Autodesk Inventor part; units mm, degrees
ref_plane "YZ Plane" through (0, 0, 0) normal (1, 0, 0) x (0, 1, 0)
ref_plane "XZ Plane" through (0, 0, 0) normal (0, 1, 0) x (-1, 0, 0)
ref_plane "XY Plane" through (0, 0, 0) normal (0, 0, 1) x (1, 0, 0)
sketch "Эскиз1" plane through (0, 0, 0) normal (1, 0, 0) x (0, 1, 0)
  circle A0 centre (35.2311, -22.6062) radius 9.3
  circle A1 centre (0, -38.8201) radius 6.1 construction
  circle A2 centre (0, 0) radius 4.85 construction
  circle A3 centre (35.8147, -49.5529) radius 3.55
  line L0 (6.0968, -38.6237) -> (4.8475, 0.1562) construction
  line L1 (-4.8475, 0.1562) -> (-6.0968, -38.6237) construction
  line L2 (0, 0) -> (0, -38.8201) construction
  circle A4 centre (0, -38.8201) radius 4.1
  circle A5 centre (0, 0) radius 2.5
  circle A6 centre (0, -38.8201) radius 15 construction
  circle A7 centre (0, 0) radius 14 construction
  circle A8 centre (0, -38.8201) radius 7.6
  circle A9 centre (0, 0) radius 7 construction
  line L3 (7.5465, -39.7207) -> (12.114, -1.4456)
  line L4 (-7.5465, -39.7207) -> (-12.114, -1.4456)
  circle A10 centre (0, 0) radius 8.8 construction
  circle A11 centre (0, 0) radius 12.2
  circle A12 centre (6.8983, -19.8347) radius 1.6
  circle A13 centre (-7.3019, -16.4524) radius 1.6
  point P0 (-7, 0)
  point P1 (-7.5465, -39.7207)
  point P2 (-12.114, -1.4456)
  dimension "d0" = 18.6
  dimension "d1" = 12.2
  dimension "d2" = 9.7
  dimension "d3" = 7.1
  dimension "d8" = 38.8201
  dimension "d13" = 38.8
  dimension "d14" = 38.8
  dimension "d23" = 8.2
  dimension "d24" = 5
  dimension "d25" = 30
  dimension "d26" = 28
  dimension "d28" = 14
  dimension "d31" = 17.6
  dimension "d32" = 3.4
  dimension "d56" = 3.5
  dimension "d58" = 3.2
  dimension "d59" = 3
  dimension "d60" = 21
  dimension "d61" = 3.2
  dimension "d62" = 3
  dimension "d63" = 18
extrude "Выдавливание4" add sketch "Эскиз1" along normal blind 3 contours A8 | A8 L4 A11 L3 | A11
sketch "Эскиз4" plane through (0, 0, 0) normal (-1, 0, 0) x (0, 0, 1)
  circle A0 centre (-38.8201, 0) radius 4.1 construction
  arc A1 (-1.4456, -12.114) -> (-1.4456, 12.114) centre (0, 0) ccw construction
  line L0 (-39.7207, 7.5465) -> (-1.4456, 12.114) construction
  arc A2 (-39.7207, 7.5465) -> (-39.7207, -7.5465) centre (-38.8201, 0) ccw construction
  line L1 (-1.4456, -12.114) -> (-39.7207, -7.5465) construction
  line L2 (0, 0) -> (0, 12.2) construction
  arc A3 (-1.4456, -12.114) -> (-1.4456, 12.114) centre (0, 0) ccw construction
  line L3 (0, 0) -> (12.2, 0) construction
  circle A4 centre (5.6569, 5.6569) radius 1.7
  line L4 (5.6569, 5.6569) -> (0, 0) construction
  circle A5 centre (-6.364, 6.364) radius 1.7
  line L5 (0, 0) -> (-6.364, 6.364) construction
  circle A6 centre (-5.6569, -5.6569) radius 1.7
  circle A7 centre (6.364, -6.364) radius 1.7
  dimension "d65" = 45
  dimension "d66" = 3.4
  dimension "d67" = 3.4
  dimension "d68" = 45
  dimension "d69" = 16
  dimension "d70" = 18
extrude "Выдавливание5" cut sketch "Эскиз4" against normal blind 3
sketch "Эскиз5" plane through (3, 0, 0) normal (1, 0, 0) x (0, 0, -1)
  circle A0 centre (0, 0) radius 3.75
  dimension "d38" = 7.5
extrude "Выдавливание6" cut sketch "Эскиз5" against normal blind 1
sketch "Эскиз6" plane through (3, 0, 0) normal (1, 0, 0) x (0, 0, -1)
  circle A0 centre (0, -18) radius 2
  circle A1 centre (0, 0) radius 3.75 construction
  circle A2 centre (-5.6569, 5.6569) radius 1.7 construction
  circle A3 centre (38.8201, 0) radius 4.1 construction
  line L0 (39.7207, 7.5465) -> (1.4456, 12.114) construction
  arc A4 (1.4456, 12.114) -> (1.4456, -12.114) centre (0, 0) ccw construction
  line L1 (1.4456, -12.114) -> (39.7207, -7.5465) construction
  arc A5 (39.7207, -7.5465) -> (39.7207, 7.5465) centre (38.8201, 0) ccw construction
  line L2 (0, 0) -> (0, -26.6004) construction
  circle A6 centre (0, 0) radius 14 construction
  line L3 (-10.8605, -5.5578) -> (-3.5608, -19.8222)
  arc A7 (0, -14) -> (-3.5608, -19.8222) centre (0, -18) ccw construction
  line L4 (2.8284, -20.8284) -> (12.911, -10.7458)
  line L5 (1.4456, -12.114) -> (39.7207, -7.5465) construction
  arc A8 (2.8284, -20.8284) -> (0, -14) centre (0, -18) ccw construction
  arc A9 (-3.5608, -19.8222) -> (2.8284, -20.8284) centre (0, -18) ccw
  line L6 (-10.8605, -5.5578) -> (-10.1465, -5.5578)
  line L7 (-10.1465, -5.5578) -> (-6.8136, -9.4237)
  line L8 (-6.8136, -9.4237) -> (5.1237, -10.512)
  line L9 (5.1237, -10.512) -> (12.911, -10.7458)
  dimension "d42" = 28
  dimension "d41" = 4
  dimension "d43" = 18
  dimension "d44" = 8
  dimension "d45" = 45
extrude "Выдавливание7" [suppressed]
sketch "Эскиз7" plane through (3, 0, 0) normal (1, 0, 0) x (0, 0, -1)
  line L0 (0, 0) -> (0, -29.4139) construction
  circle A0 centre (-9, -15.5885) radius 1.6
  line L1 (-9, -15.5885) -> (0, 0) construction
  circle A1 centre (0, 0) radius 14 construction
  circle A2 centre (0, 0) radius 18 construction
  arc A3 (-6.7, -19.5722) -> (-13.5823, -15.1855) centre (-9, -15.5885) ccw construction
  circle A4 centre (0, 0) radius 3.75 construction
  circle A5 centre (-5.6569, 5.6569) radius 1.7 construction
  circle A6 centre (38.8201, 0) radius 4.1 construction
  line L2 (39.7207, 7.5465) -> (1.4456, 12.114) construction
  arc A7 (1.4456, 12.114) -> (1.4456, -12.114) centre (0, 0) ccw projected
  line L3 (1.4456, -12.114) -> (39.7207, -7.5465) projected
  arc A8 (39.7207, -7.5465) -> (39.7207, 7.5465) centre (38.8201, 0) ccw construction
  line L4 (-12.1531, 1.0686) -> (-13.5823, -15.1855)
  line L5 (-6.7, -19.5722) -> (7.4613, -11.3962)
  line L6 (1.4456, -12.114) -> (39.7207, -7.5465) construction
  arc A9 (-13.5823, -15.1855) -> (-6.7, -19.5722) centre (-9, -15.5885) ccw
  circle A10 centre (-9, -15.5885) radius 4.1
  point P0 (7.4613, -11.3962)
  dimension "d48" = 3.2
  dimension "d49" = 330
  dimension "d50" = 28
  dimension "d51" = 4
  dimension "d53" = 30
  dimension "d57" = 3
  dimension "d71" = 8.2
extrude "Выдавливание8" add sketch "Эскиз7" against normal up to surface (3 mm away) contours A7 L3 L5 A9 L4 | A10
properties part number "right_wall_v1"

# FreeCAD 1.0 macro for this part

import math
import FreeCAD as App
import Part
import Sketcher

V = App.Vector
Q = App.Units.Quantity

doc = App.newDocument("Part")
body = doc.addObject("PartDesign::Body", "Body")

sketch1 = body.newObject("Sketcher::SketchObject", "Sketch")
sketch1.AttachmentSupport = (doc.getObject("YZ_Plane"), [""])
sketch1.MapMode = "FlatFace"
sketch1.addGeometry([
    Part.ArcOfCircle(Part.Circle(V(0, -38.8, 0), V(0, 0, 1), 7.6), math.radians(-173), math.radians(-7)),
    Part.LineSegment(V(7.5, -39.7, 0), V(12.1, -1.4, 0)),
    Part.ArcOfCircle(Part.Circle(V(0, 0, 0), V(0, 0, 1), 12.2), math.radians(-7), math.radians(187)),
    Part.LineSegment(V(-12.1, -1.4, 0), V(-7.5, -39.7, 0)),
    Part.Circle(V(0, -38.8, 0), V(0, 0, 1), 4.1),
    Part.Circle(V(-7.3, -16.5, 0), V(0, 0, 1), 1.6),
    Part.Circle(V(6.9, -19.8, 0), V(0, 0, 1), 1.6),
    Part.Circle(V(0, 0, 0), V(0, 0, 1), 2.5),
], False)
sketch1.addConstraint([
    Sketcher.Constraint("Tangent", 0, 2, 1, 1),
    Sketcher.Constraint("Tangent", 1, 2, 2, 1),
    Sketcher.Constraint("Tangent", 2, 2, 3, 1),
    Sketcher.Constraint("Tangent", 3, 2, 0, 1),
    Sketcher.Constraint("Coincident", 2, 3, -1, 1),
    Sketcher.Constraint("Coincident", 7, 3, -1, 1),
    Sketcher.Constraint("Coincident", 4, 3, 0, 3),
    Sketcher.Constraint("Equal", 5, 6),
    Sketcher.Constraint("PointOnObject", 0, 3, -2),
    Sketcher.Constraint("Diameter", 7, 5.0),
    Sketcher.Constraint("Diameter", 4, 8.2),
    Sketcher.Constraint("Diameter", 5, 3.2),
    Sketcher.Constraint("Radius", 2, 12.2),
    Sketcher.Constraint("Radius", 0, 7.6),
    Sketcher.Constraint("DistanceY", 0, 3, -1, 1, 38.82),
    Sketcher.Constraint("DistanceX", 5, 3, -1, 1, 7.302),
    Sketcher.Constraint("DistanceY", 0, 2, 6, 3, 19.886),
    Sketcher.Constraint("DistanceY", 5, 3, -1, 1, 16.4524),
    Sketcher.Constraint("DistanceX", -1, 1, 6, 3, 6.8983),
])
pad1 = body.newObject("PartDesign::Pad", "Pad")
pad1.Profile = sketch1
pad1.Length = 3

sketch2 = body.newObject("Sketcher::SketchObject", "Sketch001")
sketch2.AttachmentSupport = (doc.getObject("YZ_Plane"), [""])
sketch2.MapMode = "FlatFace"
sketch2.addGeometry([
    Part.Circle(V(5.7, 5.7, 0), V(0, 0, 1), 1.7),
    Part.Circle(V(6.4, -6.4, 0), V(0, 0, 1), 1.7),
    Part.Circle(V(-5.7, -5.7, 0), V(0, 0, 1), 1.7),
    Part.Circle(V(-6.4, 6.4, 0), V(0, 0, 1), 1.7),
], False)
sketch2.addConstraint([
    Sketcher.Constraint("Equal", 0, 1),
    Sketcher.Constraint("Equal", 1, 2),
    Sketcher.Constraint("Equal", 2, 3),
    Sketcher.Constraint("Symmetric", 0, 3, 2, 3, -1, 1),
    Sketcher.Constraint("Symmetric", 1, 3, 3, 3, -1, 1),
    Sketcher.Constraint("Diameter", 0, 3.4),
    Sketcher.Constraint("DistanceX", -1, 1, 0, 3, 5.657),
    Sketcher.Constraint("DistanceY", -1, 1, 0, 3, 5.657),
    Sketcher.Constraint("DistanceX", -1, 1, 1, 3, 6.364),
    Sketcher.Constraint("DistanceY", 1, 3, -1, 1, 6.364),
])
pocket1 = body.newObject("PartDesign::Pocket", "Pocket")
pocket1.Profile = sketch2
pocket1.Length = 3
pocket1.Reversed = True

sketch3 = body.newObject("Sketcher::SketchObject", "Sketch002")
sketch3.AttachmentSupport = (doc.getObject("YZ_Plane"), [""])
sketch3.MapMode = "FlatFace"
sketch3.AttachmentOffset = App.Placement(V(0, 0, 3), App.Rotation())
sketch3.addGeometry(Part.Circle(V(0, 0, 0), V(0, 0, 1), 3.8), False)
sketch3.addConstraint([
    Sketcher.Constraint("Coincident", 0, 3, -1, 1),
    Sketcher.Constraint("Diameter", 0, 7.5),
])
pocket2 = body.newObject("PartDesign::Pocket", "Pocket001")
pocket2.Profile = sketch3
pocket2.Length = 1

sketch4 = body.newObject("Sketcher::SketchObject", "Sketch003")
sketch4.AttachmentSupport = (doc.getObject("YZ_Plane"), [""])
sketch4.MapMode = "FlatFace"
sketch4.AttachmentOffset = App.Placement(V(0, 0, 3), App.Rotation())
sketch4.addGeometry([
    Part.ArcOfCircle(Part.Circle(V(0, 0, 0), V(0, 0, 1), 12.2), math.radians(85), math.radians(187)),
    Part.LineSegment(V(1.1, 12.2, 0), V(-15.2, 13.6, 0)),
    Part.ArcOfCircle(Part.Circle(V(-15.6, 9, 0), V(0, 0, 1), 4.6), math.radians(85), math.radians(210)),
    Part.LineSegment(V(-19.6, 6.7, 0), V(-11.4, -7.5, 0)),
    Part.LineSegment(V(-11.4, -7.5, 0), V(-12.1, -1.4, 0)),
    Part.Circle(V(-15.6, 9, 0), V(0, 0, 1), 1.6),
], False)
sketch4.addConstraint([
    Sketcher.Constraint("Tangent", 0, 1, 1, 1),
    Sketcher.Constraint("Tangent", 1, 2, 2, 1),
    Sketcher.Constraint("Tangent", 2, 2, 3, 1),
    Sketcher.Constraint("Coincident", 3, 2, 4, 1),
    Sketcher.Constraint("Tangent", 4, 2, 0, 2),
    Sketcher.Constraint("Coincident", 0, 3, -1, 1),
    Sketcher.Constraint("Coincident", 5, 3, 2, 3),
    Sketcher.Constraint("Diameter", 5, 3.2),
    Sketcher.Constraint("Radius", 0, 12.2),
    Sketcher.Constraint("Radius", 2, 4.6),
    Sketcher.Constraint("Angle", 3, Q("-60 deg")),
    Sketcher.Constraint("DistanceY", -1, 1, 2, 3, 9.0),
    Sketcher.Constraint("Distance", 3, 16.352),
    Sketcher.Constraint("DistanceX", 4, 2, -1, 1, 12.114),
])
pad2 = body.newObject("PartDesign::Pad", "Pad001")
pad2.Profile = sketch4
pad2.Length = 3
pad2.Reversed = True

doc.recompute()
